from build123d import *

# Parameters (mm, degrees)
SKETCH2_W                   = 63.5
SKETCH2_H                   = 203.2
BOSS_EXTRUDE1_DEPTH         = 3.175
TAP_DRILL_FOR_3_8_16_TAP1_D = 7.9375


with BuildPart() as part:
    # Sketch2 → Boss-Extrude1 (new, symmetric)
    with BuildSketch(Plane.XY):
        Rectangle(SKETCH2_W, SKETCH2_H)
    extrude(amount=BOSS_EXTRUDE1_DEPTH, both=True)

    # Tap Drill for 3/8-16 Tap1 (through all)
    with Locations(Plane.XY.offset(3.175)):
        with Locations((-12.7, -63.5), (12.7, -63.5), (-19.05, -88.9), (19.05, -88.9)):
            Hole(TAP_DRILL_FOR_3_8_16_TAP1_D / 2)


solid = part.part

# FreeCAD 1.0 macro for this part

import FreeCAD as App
import Part
import Sketcher
Q = App.Units.Quantity


def add_polygon(sketch, points):
    """Adds a closed chain of lines whose ends are joined by coincident constraints."""
    first, n = sketch.GeometryCount, len(points)
    for a, b in zip(points, points[1:] + points[:1]):
        sketch.addGeometry(Part.LineSegment(App.Vector(*a, 0), App.Vector(*b, 0)), False)
    for i in range(n):
        sketch.addConstraint(Sketcher.Constraint("Coincident", first + i, 2, first + (i + 1) % n, 1))

doc = App.newDocument("Part")
body = doc.addObject("PartDesign::Body", "Body")

# Sketch on XY plane
sketch1 = body.newObject("Sketcher::SketchObject", "Sketch")
sketch1.AttachmentSupport = (doc.getObject("XY_Plane"), [""])
sketch1.MapMode = "FlatFace"
add_polygon(sketch1, [(-32, 102), (-32, -102), (32, -102), (32, 102)])  # lines 0-3
sketch1.addConstraint([
    Sketcher.Constraint("Vertical", 0),
    Sketcher.Constraint("Horizontal", 1),
    Sketcher.Constraint("Vertical", 2),
    Sketcher.Constraint("Horizontal", 3),
    Sketcher.Constraint("Symmetric", 0, 2, 2, 2, -1, 1),
    Sketcher.Constraint("DistanceY", 0, 2, 0, 1, Q("8 in")),
    Sketcher.Constraint("DistanceX", 1, 1, 1, 2, Q("2.5 in")),
])
pad1 = body.newObject("PartDesign::Pad", "Pad")
pad1.Profile = sketch1
pad1.Length = Q("0.25 in")
pad1.Midplane = True

# Sketch on XY plane
sketch2 = body.newObject("Sketcher::SketchObject", "Sketch001")
sketch2.AttachmentSupport = (doc.getObject("XY_Plane"), [""])
sketch2.MapMode = "FlatFace"
sketch2.AttachmentOffset = App.Placement(App.Vector(0, 0, 0.125 * 25.4), App.Rotation())
sketch2.addGeometry([
    Part.Circle(App.Vector(-12.7, -63.5, 0), App.Vector(0, 0, 1), 4),
    Part.Circle(App.Vector(12.7, -63.5, 0), App.Vector(0, 0, 1), 4),
    Part.Circle(App.Vector(-19.1, -88.9, 0), App.Vector(0, 0, 1), 4),
    Part.Circle(App.Vector(19.1, -88.9, 0), App.Vector(0, 0, 1), 4),
], False)
sketch2.addConstraint([
    Sketcher.Constraint("Equal", 0, 1),
    Sketcher.Constraint("Equal", 1, 2),
    Sketcher.Constraint("Equal", 2, 3),
    Sketcher.Constraint("Symmetric", 0, 3, 1, 3, -2),
    Sketcher.Constraint("Symmetric", 2, 3, 3, 3, -2),
    Sketcher.Constraint("Diameter", 0, Q("0.3125 in")),
    Sketcher.Constraint("DistanceX", 0, 3, 1, 3, Q("1 in")),
    Sketcher.Constraint("DistanceY", 2, 3, 0, 3, Q("1 in")),
    Sketcher.Constraint("DistanceY", 0, 3, -1, 1, Q("2.5 in")),
    Sketcher.Constraint("DistanceX", 2, 3, 3, 3, Q("1.5 in")),
])
doc.recompute()
hole = body.newObject("PartDesign::Hole", "Hole")
hole.Profile = sketch2
hole.ThreadType = "None"
hole.Diameter = Q("0.3125 in")
hole.DepthType = "ThroughAll"

doc.recompute()
